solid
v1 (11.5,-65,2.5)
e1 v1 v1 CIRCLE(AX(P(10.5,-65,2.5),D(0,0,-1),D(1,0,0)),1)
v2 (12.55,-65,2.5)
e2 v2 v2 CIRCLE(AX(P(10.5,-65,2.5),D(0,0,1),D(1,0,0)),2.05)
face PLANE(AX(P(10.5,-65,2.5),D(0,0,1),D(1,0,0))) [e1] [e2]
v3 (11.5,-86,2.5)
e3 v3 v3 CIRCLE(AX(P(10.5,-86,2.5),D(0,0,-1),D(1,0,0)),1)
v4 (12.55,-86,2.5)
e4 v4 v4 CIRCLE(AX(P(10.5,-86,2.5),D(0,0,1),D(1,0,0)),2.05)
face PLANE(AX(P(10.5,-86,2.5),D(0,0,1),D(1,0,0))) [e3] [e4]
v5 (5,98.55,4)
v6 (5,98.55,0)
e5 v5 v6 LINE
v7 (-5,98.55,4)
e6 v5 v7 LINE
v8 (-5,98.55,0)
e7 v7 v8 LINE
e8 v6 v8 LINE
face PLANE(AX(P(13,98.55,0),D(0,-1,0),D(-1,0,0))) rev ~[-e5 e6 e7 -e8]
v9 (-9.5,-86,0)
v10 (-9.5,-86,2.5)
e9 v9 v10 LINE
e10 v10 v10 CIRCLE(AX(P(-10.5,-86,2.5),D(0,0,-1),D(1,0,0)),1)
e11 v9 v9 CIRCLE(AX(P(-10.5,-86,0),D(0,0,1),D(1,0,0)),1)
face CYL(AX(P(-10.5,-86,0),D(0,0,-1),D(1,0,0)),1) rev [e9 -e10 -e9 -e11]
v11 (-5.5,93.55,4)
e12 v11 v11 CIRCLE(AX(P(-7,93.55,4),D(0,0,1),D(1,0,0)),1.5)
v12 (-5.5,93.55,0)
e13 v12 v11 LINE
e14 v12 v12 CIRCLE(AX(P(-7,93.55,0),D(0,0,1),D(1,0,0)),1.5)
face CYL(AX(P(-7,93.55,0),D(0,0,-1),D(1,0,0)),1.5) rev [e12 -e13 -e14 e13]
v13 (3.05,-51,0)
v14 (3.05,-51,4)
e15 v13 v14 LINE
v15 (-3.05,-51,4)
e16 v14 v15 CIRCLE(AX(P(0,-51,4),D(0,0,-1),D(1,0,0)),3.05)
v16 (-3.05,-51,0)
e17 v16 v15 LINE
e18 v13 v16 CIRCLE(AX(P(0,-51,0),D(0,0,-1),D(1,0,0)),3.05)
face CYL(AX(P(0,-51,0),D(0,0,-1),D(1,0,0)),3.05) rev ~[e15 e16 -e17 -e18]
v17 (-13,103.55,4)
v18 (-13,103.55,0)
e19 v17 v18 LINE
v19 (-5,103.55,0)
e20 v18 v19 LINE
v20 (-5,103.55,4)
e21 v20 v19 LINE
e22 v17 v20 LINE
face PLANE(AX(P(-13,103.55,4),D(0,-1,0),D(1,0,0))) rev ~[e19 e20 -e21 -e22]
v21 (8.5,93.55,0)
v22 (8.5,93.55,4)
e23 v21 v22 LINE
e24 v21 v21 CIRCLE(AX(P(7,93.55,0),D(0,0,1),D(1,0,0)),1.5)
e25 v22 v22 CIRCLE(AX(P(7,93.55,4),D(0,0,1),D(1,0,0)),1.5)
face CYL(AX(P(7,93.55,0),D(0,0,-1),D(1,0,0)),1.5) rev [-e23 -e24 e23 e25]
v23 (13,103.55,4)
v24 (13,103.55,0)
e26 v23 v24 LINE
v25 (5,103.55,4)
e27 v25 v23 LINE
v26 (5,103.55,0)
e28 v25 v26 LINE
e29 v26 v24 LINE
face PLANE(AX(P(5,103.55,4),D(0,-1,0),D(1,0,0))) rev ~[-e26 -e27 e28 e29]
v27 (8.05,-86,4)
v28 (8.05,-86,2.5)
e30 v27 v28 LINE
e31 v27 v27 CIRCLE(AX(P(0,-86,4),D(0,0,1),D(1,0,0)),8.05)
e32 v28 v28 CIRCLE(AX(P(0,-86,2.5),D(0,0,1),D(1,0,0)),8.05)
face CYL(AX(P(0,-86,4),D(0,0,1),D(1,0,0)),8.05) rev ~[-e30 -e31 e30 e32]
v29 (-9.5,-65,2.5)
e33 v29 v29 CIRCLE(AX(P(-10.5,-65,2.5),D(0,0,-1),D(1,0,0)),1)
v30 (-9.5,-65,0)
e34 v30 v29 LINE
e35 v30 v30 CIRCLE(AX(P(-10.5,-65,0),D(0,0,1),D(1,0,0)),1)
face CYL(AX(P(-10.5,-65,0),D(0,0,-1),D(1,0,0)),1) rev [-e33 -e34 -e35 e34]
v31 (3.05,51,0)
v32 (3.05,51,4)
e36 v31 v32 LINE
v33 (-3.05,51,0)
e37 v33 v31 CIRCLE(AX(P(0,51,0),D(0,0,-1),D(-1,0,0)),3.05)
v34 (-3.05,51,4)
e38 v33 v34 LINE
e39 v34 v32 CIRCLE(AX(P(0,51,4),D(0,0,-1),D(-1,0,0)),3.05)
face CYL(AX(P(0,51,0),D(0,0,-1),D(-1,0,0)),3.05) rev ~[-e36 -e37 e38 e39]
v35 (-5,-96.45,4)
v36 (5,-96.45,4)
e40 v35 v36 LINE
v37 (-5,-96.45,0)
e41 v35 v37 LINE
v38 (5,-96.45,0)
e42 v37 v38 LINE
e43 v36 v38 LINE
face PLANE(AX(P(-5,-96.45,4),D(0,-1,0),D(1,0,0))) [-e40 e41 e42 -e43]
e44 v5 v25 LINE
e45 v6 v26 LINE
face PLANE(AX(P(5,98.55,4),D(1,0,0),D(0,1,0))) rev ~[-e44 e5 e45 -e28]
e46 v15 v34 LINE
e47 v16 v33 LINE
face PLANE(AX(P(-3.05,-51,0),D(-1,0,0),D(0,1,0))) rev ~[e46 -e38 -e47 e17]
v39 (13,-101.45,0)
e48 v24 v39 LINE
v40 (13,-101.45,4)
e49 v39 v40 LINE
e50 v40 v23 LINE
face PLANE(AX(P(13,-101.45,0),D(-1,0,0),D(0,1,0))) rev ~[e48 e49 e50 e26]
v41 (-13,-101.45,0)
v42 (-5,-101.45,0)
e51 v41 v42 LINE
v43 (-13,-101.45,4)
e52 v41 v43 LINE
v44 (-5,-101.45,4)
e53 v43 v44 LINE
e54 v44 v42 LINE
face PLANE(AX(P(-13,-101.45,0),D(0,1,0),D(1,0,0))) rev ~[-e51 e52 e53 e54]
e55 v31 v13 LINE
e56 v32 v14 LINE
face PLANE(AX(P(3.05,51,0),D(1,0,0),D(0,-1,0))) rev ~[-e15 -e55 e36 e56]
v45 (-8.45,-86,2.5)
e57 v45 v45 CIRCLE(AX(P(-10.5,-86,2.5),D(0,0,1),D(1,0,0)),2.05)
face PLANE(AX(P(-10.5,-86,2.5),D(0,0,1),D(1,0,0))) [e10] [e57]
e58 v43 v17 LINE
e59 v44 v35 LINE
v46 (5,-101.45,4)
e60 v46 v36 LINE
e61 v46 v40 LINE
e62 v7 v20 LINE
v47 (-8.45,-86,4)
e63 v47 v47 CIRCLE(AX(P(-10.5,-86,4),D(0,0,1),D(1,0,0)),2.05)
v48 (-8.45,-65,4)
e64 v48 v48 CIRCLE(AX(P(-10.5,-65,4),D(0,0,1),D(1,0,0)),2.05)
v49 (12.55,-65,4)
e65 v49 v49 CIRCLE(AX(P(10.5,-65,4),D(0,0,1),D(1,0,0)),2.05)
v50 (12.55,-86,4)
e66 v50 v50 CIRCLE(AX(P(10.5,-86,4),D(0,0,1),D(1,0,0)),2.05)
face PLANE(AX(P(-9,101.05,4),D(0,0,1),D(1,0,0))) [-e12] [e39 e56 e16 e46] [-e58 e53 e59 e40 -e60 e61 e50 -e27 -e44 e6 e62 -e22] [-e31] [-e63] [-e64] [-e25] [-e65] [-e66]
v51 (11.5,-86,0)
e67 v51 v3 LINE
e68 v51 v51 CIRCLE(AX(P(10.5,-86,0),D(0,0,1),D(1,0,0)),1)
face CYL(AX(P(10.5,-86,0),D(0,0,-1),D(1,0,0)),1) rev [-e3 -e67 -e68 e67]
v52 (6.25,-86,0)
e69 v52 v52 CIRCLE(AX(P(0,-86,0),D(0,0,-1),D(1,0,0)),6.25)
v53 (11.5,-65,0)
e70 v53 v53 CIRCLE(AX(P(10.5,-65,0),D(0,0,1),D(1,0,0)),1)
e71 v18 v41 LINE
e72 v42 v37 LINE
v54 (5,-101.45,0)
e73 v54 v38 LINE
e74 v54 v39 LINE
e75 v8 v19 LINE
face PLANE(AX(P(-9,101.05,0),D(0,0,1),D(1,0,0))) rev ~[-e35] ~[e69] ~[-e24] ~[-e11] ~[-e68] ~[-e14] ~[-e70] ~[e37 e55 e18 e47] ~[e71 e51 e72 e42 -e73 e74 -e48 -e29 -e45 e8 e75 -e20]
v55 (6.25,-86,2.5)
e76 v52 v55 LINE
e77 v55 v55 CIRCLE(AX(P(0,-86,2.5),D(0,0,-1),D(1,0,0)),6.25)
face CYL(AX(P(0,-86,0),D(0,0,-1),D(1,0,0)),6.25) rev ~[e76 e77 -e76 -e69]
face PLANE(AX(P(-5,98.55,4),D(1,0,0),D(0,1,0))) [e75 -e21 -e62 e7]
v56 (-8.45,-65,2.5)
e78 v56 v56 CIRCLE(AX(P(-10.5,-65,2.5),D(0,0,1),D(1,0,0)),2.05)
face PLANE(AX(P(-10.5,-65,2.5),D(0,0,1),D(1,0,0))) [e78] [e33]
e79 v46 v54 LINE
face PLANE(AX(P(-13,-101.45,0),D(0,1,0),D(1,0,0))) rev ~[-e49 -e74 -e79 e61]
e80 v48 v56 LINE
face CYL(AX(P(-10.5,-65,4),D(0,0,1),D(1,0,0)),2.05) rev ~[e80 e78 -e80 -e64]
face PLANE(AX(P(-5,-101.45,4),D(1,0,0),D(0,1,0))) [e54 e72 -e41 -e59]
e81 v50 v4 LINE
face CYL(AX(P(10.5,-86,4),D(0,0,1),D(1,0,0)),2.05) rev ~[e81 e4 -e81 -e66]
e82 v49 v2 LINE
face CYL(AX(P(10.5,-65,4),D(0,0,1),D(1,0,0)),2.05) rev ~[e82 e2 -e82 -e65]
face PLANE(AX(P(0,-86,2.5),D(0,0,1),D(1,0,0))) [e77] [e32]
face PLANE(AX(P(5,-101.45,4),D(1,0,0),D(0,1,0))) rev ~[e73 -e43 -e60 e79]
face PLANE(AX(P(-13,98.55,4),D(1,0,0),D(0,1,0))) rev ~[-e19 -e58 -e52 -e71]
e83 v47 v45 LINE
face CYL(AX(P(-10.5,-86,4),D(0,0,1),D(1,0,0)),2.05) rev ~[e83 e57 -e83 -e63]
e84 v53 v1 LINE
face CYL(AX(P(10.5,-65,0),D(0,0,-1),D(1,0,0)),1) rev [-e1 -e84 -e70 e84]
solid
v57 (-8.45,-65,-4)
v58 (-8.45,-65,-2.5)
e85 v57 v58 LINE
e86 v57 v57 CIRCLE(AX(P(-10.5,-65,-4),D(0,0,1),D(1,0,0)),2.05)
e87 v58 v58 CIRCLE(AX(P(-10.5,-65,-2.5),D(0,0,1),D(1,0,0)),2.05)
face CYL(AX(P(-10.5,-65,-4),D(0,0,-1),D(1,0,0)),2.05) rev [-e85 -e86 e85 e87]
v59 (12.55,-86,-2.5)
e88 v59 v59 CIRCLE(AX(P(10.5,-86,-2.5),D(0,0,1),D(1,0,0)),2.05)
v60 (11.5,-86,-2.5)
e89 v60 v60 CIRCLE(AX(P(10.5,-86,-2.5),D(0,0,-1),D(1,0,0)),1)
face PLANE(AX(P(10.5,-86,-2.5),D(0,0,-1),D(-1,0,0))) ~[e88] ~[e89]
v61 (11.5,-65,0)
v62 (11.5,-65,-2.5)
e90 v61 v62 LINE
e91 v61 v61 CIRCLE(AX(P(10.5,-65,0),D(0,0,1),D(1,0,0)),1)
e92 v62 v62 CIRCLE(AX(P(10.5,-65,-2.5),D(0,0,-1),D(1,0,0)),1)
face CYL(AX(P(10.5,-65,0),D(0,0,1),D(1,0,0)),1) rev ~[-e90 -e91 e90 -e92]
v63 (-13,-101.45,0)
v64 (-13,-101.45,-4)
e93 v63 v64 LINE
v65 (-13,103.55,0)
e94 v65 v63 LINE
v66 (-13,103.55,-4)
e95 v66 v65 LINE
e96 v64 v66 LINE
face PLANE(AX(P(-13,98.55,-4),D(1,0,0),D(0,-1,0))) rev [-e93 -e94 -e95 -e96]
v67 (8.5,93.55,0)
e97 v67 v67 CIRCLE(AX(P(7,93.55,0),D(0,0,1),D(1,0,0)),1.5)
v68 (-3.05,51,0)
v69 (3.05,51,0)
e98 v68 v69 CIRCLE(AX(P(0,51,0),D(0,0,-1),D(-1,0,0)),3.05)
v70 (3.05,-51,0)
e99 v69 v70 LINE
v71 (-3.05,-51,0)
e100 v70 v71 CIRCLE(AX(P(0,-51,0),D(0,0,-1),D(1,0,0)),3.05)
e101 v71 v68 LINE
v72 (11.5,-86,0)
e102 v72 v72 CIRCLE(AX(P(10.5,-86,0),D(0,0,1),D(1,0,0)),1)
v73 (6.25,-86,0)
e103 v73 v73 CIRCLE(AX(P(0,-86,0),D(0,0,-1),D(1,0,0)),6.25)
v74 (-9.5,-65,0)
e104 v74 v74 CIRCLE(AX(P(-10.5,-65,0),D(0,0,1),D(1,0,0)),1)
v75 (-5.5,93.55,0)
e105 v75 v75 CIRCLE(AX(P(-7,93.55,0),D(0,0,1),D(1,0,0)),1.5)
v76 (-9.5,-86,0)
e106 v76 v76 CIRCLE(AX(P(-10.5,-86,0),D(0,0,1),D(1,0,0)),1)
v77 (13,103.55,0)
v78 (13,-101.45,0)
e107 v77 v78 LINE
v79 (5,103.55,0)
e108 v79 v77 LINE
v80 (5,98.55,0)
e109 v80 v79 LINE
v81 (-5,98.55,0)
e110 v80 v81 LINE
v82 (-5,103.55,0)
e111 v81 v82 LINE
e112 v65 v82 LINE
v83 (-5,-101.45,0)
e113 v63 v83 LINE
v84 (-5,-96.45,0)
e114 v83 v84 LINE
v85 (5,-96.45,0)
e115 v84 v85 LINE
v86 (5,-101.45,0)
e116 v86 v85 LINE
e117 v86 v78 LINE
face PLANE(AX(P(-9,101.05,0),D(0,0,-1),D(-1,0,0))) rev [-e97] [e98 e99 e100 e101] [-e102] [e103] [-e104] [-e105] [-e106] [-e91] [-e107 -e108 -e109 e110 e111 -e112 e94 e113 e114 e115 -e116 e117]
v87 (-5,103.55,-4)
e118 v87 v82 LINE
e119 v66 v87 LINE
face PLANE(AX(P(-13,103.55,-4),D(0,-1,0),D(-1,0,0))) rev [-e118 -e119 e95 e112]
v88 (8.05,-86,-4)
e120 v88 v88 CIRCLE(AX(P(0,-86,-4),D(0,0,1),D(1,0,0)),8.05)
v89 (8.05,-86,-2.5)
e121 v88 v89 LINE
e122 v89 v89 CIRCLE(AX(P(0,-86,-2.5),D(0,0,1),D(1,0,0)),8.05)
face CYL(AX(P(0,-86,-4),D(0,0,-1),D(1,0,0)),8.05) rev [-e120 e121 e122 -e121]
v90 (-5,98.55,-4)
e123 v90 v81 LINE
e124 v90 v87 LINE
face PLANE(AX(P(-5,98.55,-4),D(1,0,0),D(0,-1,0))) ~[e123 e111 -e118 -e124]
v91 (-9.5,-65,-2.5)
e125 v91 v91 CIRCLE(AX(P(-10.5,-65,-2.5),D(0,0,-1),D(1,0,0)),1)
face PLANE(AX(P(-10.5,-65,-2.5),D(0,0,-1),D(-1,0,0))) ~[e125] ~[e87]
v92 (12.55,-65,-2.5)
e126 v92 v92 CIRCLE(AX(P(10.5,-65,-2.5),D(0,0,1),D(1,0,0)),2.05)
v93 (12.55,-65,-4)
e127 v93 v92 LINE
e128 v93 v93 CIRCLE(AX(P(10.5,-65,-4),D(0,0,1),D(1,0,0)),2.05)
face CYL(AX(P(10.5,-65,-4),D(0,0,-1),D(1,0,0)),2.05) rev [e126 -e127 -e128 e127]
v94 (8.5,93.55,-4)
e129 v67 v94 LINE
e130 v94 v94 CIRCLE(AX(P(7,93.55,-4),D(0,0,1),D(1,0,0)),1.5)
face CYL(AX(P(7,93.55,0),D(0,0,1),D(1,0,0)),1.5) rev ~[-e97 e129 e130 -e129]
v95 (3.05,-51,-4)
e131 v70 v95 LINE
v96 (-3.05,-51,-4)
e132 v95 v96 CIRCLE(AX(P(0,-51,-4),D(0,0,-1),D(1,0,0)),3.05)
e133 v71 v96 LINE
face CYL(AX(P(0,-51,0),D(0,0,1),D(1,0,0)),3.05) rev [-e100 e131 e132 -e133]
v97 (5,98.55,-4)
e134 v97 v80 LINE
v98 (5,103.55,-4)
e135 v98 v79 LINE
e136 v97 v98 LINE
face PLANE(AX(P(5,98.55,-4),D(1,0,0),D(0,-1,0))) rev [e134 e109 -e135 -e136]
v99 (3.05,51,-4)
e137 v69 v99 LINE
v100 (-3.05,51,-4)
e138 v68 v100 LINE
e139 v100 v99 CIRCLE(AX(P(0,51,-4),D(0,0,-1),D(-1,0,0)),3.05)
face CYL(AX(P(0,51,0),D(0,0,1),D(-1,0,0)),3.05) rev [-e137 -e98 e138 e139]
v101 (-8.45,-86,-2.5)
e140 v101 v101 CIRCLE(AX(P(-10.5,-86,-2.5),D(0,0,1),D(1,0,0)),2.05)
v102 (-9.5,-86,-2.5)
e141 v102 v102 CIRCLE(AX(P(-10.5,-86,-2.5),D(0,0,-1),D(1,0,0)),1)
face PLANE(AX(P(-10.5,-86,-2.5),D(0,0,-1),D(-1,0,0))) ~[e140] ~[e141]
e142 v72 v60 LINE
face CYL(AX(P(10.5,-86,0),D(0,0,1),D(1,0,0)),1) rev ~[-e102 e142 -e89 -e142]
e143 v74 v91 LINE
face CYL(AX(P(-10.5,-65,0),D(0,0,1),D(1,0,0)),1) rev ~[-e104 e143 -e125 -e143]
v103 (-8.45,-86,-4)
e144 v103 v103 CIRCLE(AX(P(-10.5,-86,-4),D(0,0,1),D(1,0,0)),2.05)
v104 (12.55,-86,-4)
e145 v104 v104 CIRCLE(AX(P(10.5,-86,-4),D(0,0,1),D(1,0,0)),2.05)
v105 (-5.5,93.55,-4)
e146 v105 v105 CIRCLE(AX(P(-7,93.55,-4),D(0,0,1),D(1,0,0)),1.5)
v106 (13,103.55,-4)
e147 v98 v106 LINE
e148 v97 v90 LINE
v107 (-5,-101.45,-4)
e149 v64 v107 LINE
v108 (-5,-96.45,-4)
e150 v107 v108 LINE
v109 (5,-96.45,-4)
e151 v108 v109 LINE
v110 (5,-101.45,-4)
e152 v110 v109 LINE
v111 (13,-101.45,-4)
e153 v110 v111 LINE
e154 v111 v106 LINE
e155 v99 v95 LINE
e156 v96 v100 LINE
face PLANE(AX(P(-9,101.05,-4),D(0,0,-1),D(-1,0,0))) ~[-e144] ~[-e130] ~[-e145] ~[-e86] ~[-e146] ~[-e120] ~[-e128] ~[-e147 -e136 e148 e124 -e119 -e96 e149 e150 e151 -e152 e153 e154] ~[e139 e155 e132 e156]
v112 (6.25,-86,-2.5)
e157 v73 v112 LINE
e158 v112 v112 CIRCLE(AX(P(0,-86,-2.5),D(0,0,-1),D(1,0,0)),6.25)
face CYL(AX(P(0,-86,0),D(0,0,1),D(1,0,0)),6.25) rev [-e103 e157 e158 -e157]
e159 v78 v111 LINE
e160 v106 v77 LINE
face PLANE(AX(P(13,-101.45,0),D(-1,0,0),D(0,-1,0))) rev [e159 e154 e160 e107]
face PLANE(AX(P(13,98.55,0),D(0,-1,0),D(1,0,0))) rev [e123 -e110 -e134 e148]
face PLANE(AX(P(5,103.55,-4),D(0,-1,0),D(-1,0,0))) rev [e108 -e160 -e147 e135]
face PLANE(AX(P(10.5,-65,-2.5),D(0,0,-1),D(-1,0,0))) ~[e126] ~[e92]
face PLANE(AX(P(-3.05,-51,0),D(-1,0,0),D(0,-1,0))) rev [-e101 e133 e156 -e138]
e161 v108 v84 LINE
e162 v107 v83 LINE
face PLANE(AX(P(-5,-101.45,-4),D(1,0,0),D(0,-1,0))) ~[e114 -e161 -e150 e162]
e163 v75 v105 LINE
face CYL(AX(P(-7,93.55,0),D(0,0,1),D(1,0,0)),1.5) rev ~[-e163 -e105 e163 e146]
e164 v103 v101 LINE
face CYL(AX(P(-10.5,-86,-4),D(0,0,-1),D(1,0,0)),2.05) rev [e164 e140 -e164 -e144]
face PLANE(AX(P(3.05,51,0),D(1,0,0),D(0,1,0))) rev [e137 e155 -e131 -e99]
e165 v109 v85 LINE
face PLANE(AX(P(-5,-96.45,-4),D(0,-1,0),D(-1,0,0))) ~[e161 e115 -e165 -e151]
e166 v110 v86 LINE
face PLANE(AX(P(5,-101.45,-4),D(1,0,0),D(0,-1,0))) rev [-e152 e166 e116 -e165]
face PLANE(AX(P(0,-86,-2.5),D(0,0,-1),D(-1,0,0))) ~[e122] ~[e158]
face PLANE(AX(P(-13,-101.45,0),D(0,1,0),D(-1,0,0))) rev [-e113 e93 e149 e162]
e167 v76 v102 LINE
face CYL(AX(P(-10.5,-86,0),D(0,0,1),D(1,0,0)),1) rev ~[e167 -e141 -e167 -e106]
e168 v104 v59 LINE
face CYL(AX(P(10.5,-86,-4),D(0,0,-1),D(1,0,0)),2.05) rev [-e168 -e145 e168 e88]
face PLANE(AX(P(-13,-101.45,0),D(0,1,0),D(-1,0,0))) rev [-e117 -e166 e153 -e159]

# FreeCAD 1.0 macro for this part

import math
import FreeCAD as App
import Part
import Sketcher
from FreeCAD import Vector


def add_polygon(sketch, points):
    """Adds a closed chain of lines whose ends are joined by coincident constraints."""
    first, n = sketch.GeometryCount, len(points)
    for a, b in zip(points, points[1:] + points[:1]):
        sketch.addGeometry(Part.LineSegment(App.Vector(*a, 0), App.Vector(*b, 0)), False)
    for i in range(n):
        sketch.addConstraint(Sketcher.Constraint("Coincident", first + i, 2, first + (i + 1) % n, 1))

doc = App.newDocument("Part")
body = doc.addObject("PartDesign::Body", "Body")

sketch1 = body.newObject("Sketcher::SketchObject", "Sketch")
sketch1.AttachmentSupport = (doc.getObject("XY_Plane"), [""])
sketch1.MapMode = "FlatFace"
add_polygon(sketch1, [(-13, -101.5), (13, -101.5), (13, 98.5), (-13, 98.5)])
sketch1.addGeometry(Part.Circle(Vector(0, -86, 0), Vector(0, 0, 1), 6.2), False)
sketch1.addGeometry(Part.Circle(Vector(-10.5, -86, 0), Vector(0, 0, 1), 1), False)
sketch1.addGeometry(Part.Circle(Vector(-10.5, -65, 0), Vector(0, 0, 1), 1), False)
sketch1.addGeometry(Part.Circle(Vector(10.5, -86, 0), Vector(0, 0, 1), 1), False)
sketch1.addGeometry(Part.Circle(Vector(10.5, -65, 0), Vector(0, 0, 1), 1), False)
sketch1.addGeometry(Part.LineSegment(Vector(-3, -51, 0), Vector(-3, 51, 0)), False)
sketch1.addGeometry(Part.ArcOfCircle(Part.Circle(Vector(0, 51, 0), Vector(0, 0, 1), 3), math.radians(0), math.radians(180)), False)
sketch1.addGeometry(Part.LineSegment(Vector(3, 51, 0), Vector(3, -51, 0)), False)
sketch1.addGeometry(Part.ArcOfCircle(Part.Circle(Vector(0, -51, 0), Vector(0, 0, 1), 3), math.radians(180), math.radians(360)), False)
sketch1.addGeometry(Part.Circle(Vector(-7, 93.5, 0), Vector(0, 0, 1), 1.5), False)
sketch1.addGeometry(Part.Circle(Vector(7, 93.5, 0), Vector(0, 0, 1), 1.5), False)
sketch1.addConstraint([
    Sketcher.Constraint("Tangent", 9, 2, 10, 2),
    Sketcher.Constraint("Tangent", 10, 1, 11, 1),
    Sketcher.Constraint("Tangent", 11, 2, 12, 2),
    Sketcher.Constraint("Tangent", 12, 1, 9, 1),
    Sketcher.Constraint("Horizontal", 0),
    Sketcher.Constraint("Vertical", 1),
    Sketcher.Constraint("Horizontal", 2),
    Sketcher.Constraint("Vertical", 3),
    Sketcher.Constraint("Vertical", 9),
    Sketcher.Constraint("Vertical", 11),
    Sketcher.Constraint("Equal", 5, 6),
    Sketcher.Constraint("Equal", 6, 7),
    Sketcher.Constraint("Equal", 7, 8),
    Sketcher.Constraint("Equal", 13, 14),
    Sketcher.Constraint("Symmetric", 10, 3, 12, 3, -1, 1),
    Sketcher.Constraint("Symmetric", 5, 3, 7, 3, -2),
    Sketcher.Constraint("Symmetric", 6, 3, 8, 3, -2),
    Sketcher.Constraint("Symmetric", 13, 3, 14, 3, -2),
    Sketcher.Constraint("PointOnObject", 4, 3, -2),
    Sketcher.Constraint("Horizontal", 4, 3, 5, 3),
    Sketcher.Constraint("Vertical", 5, 3, 6, 3),
    Sketcher.Constraint("Diameter", 5, 2.0),
    Sketcher.Constraint("Diameter", 13, 3.0),
    Sketcher.Constraint("Diameter", 4, 12.5),
    Sketcher.Constraint("DistanceX", 0, 1, 0, 2, 26.0),
    Sketcher.Constraint("DistanceY", 1, 1, 1, 2, 200.0),
    Sketcher.Constraint("DistanceY", 9, 1, 9, 2, 102.0),
    Sketcher.Constraint("Radius", 10, 3.05),
    Sketcher.Constraint("DistanceY", 4, 3, -1, 1, 86.0),
    Sketcher.Constraint("DistanceY", 6, 3, -1, 1, 65.0),
    Sketcher.Constraint("DistanceX", 13, 3, -1, 1, 7.0),
    Sketcher.Constraint("DistanceX", -1, 1, 0, 2, 13.0),
    Sketcher.Constraint("DistanceX", 5, 3, 7, 3, 21.0),
    Sketcher.Constraint("DistanceY", 14, 3, 1, 2, 5.0),
    Sketcher.Constraint("DistanceY", -1, 1, 13, 3, 93.55),
])
pad1 = body.newObject("PartDesign::Pad", "Pad")
pad1.Profile = sketch1
pad1.Length = 4

sketch2 = body.newObject("Sketcher::SketchObject", "Sketch001")
sketch2.AttachmentSupport = (doc.getObject("XY_Plane"), [""])
sketch2.MapMode = "FlatFace"
sketch2.AttachmentOffset = App.Placement(Vector(0, 0, 4), App.Rotation())
sketch2.addGeometry([
    Part.Circle(Vector(0, -86, 0), Vector(0, 0, 1), 8.1),
    Part.Circle(Vector(-10.5, -86, 0), Vector(0, 0, 1), 2),
    Part.Circle(Vector(-10.5, -65, 0), Vector(0, 0, 1), 2),
    Part.Circle(Vector(10.5, -65, 0), Vector(0, 0, 1), 2),
    Part.Circle(Vector(10.5, -86, 0), Vector(0, 0, 1), 2),
], False)
sketch2.addConstraint([
    Sketcher.Constraint("Equal", 1, 2),
    Sketcher.Constraint("Equal", 2, 3),
    Sketcher.Constraint("Equal", 3, 4),
    Sketcher.Constraint("Symmetric", 2, 3, 3, 3, -2),
    Sketcher.Constraint("Symmetric", 1, 3, 4, 3, -2),
    Sketcher.Constraint("PointOnObject", 0, 3, -2),
    Sketcher.Constraint("Horizontal", 0, 3, 1, 3),
    Sketcher.Constraint("Vertical", 1, 3, 2, 3),
    Sketcher.Constraint("Diameter", 0, 16.1),
    Sketcher.Constraint("Diameter", 1, 4.1),
    Sketcher.Constraint("DistanceY", 0, 3, -1, 1, 86.0),
    Sketcher.Constraint("DistanceY", 2, 3, -1, 1, 65.0),
    Sketcher.Constraint("DistanceX", 2, 3, 3, 3, 21.0),
])
pocket1 = body.newObject("PartDesign::Pocket", "Pocket")
pocket1.Profile = sketch2
pocket1.Length = 1.5

sketch3 = body.newObject("Sketcher::SketchObject", "Sketch002")
sketch3.AttachmentSupport = (doc.getObject("XY_Plane"), [""])
sketch3.MapMode = "FlatFace"
sketch3.AttachmentOffset = App.Placement(Vector(0, 0, 4), App.Rotation())
add_polygon(sketch3, [(-5, -96), (-5, -101), (5, -101), (5, -96)])
sketch3.addConstraint([
    Sketcher.Constraint("Vertical", 0),
    Sketcher.Constraint("Horizontal", 1),
    Sketcher.Constraint("Vertical", 2),
    Sketcher.Constraint("Horizontal", 3),
    Sketcher.Constraint("DistanceX", 1, 1, 1, 2, 10.0),
    Sketcher.Constraint("DistanceY", 0, 2, 0, 1, 5.0),
    Sketcher.Constraint("DistanceX", 0, 2, -1, 1, 5.0),
    Sketcher.Constraint("DistanceY", 0, 2, -1, 1, 101.45),
])
pocket2 = body.newObject("PartDesign::Pocket", "Pocket001")
pocket2.Profile = sketch3
pocket2.Type = "ThroughAll"

sketch4 = body.newObject("Sketcher::SketchObject", "Sketch003")
sketch4.AttachmentSupport = (doc.getObject("XY_Plane"), [""])
sketch4.MapMode = "FlatFace"
sketch4.AttachmentOffset = App.Placement(Vector(0, 0, 4), App.Rotation())
add_polygon(sketch4, [(-13, 104), (-13, 99), (-5, 99), (-5, 104)])
add_polygon(sketch4, [(5, 104), (5, 99), (13, 99), (13, 104)])
sketch4.addConstraint([
    Sketcher.Constraint("Vertical", 0),
    Sketcher.Constraint("Horizontal", 1),
    Sketcher.Constraint("Vertical", 2),
    Sketcher.Constraint("Horizontal", 3),
    Sketcher.Constraint("Vertical", 4),
    Sketcher.Constraint("Horizontal", 5),
    Sketcher.Constraint("Vertical", 6),
    Sketcher.Constraint("Horizontal", 7),
    Sketcher.Constraint("Symmetric", 1, 2, 4, 2, -2),
    Sketcher.Constraint("Symmetric", 3, 2, 6, 2, -2),
    Sketcher.Constraint("DistanceX", 1, 1, 1, 2, 8.0),
    Sketcher.Constraint("DistanceY", 0, 2, 0, 1, 5.0),
    Sketcher.Constraint("DistanceX", 0, 2, -1, 1, 13.0),
    Sketcher.Constraint("DistanceY", -1, 1, 0, 2, 98.55),
])
pad2 = body.newObject("PartDesign::Pad", "Pad001")
pad2.Profile = sketch4
pad2.Length = 4
pad2.Reversed = True
body2 = doc.addObject("PartDesign::Body", "Body001")
doc.recompute()

mirroring = doc.addObject("Part::Mirroring", "Mirroring")
mirroring.Source = body
mirroring.Base = Vector(0, 0, 0)
mirroring.Normal = Vector(0, 0, 1)
body2.BaseFeature = mirroring
doc.recompute()
mirroring.Visibility = False

doc.recompute()
